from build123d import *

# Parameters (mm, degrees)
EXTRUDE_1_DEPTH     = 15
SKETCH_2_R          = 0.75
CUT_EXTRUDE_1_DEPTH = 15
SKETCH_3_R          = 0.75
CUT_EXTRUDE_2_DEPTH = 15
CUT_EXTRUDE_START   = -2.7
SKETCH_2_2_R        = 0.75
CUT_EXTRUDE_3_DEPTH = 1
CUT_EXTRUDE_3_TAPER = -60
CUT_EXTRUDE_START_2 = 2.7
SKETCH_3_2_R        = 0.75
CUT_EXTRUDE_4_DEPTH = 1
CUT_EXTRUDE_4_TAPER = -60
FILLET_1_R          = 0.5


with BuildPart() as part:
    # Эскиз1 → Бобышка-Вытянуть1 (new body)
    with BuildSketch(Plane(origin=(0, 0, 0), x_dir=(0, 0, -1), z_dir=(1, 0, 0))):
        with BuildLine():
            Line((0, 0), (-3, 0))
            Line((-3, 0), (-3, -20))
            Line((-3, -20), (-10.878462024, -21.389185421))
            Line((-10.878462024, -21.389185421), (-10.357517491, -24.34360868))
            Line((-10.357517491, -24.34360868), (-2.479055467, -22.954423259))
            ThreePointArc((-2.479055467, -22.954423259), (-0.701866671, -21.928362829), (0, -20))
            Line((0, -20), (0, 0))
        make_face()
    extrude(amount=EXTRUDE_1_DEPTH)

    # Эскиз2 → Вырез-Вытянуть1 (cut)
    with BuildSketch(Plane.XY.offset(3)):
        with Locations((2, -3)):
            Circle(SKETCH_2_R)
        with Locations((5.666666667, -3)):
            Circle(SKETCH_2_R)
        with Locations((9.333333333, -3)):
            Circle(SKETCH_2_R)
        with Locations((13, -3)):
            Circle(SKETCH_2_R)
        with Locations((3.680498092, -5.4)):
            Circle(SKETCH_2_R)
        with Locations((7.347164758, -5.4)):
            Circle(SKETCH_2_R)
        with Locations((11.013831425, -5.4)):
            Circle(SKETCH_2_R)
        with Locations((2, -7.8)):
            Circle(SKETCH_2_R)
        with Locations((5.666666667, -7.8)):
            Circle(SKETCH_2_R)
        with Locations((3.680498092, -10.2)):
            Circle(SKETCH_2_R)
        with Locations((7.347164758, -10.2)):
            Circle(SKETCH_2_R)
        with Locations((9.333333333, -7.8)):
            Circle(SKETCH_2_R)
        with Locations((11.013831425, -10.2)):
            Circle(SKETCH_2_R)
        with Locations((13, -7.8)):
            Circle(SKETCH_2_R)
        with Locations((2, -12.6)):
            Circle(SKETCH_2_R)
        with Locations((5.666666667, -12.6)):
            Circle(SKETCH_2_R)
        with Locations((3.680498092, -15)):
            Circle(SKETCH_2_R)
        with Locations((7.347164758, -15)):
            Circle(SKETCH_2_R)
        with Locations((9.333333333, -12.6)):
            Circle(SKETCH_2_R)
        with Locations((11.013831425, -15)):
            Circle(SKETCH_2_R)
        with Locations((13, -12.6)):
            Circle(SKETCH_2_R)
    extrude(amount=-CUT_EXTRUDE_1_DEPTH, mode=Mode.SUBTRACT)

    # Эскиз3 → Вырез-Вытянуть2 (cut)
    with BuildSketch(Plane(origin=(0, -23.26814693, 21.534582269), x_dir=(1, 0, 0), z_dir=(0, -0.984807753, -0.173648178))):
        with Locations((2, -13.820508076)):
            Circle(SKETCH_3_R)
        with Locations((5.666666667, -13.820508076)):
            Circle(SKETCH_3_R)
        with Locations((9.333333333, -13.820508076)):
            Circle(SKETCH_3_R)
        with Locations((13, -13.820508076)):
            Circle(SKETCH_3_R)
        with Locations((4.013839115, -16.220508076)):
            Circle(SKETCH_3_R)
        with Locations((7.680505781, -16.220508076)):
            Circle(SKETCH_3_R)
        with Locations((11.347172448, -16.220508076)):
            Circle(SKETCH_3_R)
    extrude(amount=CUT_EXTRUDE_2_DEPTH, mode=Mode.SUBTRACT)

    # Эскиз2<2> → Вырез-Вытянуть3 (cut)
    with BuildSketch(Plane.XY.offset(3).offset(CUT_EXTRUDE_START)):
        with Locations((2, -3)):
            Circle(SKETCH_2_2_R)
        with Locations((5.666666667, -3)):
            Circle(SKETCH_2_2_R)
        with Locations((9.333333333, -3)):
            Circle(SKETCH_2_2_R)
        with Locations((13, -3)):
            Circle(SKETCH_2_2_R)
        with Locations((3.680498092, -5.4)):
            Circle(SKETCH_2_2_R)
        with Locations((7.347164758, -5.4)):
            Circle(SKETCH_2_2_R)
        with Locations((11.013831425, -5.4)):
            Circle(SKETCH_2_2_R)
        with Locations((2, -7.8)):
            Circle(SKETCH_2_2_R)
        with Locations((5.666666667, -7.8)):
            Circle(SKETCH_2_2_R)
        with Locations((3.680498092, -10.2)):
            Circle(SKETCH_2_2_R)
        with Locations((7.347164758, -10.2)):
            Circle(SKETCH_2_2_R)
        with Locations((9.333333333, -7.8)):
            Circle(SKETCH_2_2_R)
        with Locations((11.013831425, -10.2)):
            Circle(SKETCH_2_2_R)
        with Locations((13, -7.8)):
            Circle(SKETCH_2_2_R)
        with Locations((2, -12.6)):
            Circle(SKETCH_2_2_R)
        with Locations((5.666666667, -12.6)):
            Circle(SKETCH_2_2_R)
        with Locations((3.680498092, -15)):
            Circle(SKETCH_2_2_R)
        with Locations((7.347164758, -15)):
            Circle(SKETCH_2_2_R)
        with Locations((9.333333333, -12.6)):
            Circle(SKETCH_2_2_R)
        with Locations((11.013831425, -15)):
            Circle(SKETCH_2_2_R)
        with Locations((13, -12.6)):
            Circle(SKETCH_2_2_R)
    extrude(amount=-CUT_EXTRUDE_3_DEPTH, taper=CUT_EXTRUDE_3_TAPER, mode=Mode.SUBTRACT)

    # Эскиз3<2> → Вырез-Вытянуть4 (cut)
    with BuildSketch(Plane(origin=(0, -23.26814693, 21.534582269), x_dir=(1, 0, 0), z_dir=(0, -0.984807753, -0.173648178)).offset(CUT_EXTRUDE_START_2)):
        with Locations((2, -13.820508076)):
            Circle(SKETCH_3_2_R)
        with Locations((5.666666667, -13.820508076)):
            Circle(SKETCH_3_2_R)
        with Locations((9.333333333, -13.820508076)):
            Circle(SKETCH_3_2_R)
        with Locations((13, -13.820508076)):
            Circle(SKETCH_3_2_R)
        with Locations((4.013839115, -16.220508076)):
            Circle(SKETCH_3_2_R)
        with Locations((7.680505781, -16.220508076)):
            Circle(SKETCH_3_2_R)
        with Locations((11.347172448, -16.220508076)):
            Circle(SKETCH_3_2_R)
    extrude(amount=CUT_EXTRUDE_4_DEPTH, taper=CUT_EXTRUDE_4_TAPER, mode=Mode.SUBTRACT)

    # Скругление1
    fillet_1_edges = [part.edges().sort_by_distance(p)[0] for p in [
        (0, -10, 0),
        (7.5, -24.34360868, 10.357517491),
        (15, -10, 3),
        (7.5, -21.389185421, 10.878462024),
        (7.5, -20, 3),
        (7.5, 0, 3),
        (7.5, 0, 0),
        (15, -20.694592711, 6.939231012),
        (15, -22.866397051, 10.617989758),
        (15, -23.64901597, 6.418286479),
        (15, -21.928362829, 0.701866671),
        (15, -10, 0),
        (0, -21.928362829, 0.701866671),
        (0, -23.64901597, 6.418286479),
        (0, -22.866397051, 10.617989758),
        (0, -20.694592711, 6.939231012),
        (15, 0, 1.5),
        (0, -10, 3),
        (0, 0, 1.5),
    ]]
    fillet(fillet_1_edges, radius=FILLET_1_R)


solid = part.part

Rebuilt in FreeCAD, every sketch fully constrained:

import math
import FreeCAD as App
import Part
import Sketcher
from FreeCAD import Vector
Q = App.Units.Quantity


def edges_at(feature, points):
    """Names of the edges that pass closest to the given points."""
    edges = feature.Shape.Edges
    near = lambda p: min(range(len(edges)), key=lambda i: edges[i].distToShape(Part.Vertex(*p))[0])
    return sorted({f"Edge{near(p) + 1}" for p in points})

doc = App.newDocument("Part")
body = doc.addObject("PartDesign::Body", "Body")

# Sketch on YZ plane
sketch1 = body.newObject("Sketcher::SketchObject", "Sketch")
sketch1.AttachmentSupport = (doc.getObject("YZ_Plane"), [""])
sketch1.MapMode = "FlatFace"
sketch1.addGeometry([
    Part.LineSegment(Vector(0, 0, 0), Vector(0, 3, 0)),  # 0
    Part.LineSegment(Vector(0, 3, 0), Vector(-20, 3, 0)),  # 1
    Part.LineSegment(Vector(-20, 3, 0), Vector(-21.4, 10.9, 0)),  # 2
    Part.LineSegment(Vector(-21.4, 10.9, 0), Vector(-24.3, 10.4, 0)),  # 3
    Part.LineSegment(Vector(-24.3, 10.4, 0), Vector(-23, 2.5, 0)),  # 4
    Part.ArcOfCircle(Part.Circle(Vector(-20, 3, 0), Vector(0, 0, 1), 3), math.radians(-170), math.radians(-90)),  # 5
    Part.LineSegment(Vector(-20, 0, 0), Vector(0, 0, 0)),  # 6
], False)
sketch1.addConstraint([
    Sketcher.Constraint("Coincident", 0, 2, 1, 1),
    Sketcher.Constraint("Coincident", 1, 2, 2, 1),
    Sketcher.Constraint("Coincident", 2, 2, 3, 1),
    Sketcher.Constraint("Coincident", 3, 2, 4, 1),
    Sketcher.Constraint("Tangent", 4, 2, 5, 1),
    Sketcher.Constraint("Tangent", 5, 2, 6, 1),
    Sketcher.Constraint("Coincident", 6, 2, 0, 1),
    Sketcher.Constraint("Vertical", 0),
    Sketcher.Constraint("Horizontal", 1),
    Sketcher.Constraint("Horizontal", 6),
    Sketcher.Constraint("Coincident", 6, 2, -1, 1),
    Sketcher.Constraint("Coincident", 1, 2, 5, 3),
    Sketcher.Constraint("Perpendicular", 2, 3),
    Sketcher.Constraint("Perpendicular", 3, 4),
    Sketcher.Constraint("Radius", 5, Q("3 mm")),
    Sketcher.Constraint("DistanceX", 1, 2, 1, 1, Q("20 mm")),
    Sketcher.Constraint("Angle", 2, Q("100 deg")),
    Sketcher.Constraint("Distance", 2, Q("8 mm")),
])
pad1 = body.newObject("PartDesign::Pad", "Pad")
pad1.Profile = sketch1
pad1.Length = 15

# Sketch on XY plane
sketch2 = body.newObject("Sketcher::SketchObject", "Sketch001")
sketch2.AttachmentSupport = (doc.getObject("XY_Plane"), [""])
sketch2.MapMode = "FlatFace"
sketch2.AttachmentOffset = App.Placement(Vector(0, 0, 3), App.Rotation())
sketch2.addGeometry([
    Part.Circle(Vector(2, -3, 0), Vector(0, 0, 1), 0.8),  # 0
    Part.Circle(Vector(5.7, -3, 0), Vector(0, 0, 1), 0.8),  # 1
    Part.Circle(Vector(9.3, -3, 0), Vector(0, 0, 1), 0.8),  # 2
    Part.Circle(Vector(13, -3, 0), Vector(0, 0, 1), 0.8),  # 3
    Part.Circle(Vector(3.7, -5.4, 0), Vector(0, 0, 1), 0.8),  # 4
    Part.Circle(Vector(7.3, -5.4, 0), Vector(0, 0, 1), 0.8),  # 5
    Part.Circle(Vector(11, -5.4, 0), Vector(0, 0, 1), 0.8),  # 6
    Part.Circle(Vector(2, -7.8, 0), Vector(0, 0, 1), 0.8),  # 7
    Part.Circle(Vector(5.7, -7.8, 0), Vector(0, 0, 1), 0.8),  # 8
    Part.Circle(Vector(3.7, -10.2, 0), Vector(0, 0, 1), 0.8),  # 9
    Part.Circle(Vector(7.3, -10.2, 0), Vector(0, 0, 1), 0.8),  # 10
    Part.Circle(Vector(9.3, -7.8, 0), Vector(0, 0, 1), 0.8),  # 11
    Part.Circle(Vector(11, -10.2, 0), Vector(0, 0, 1), 0.8),  # 12
    Part.Circle(Vector(13, -7.8, 0), Vector(0, 0, 1), 0.8),  # 13
    Part.Circle(Vector(2, -12.6, 0), Vector(0, 0, 1), 0.8),  # 14
    Part.Circle(Vector(5.7, -12.6, 0), Vector(0, 0, 1), 0.8),  # 15
    Part.Circle(Vector(3.7, -15, 0), Vector(0, 0, 1), 0.8),  # 16
    Part.Circle(Vector(7.3, -15, 0), Vector(0, 0, 1), 0.8),  # 17
    Part.Circle(Vector(9.3, -12.6, 0), Vector(0, 0, 1), 0.8),  # 18
    Part.Circle(Vector(11, -15, 0), Vector(0, 0, 1), 0.8),  # 19
    Part.Circle(Vector(13, -12.6, 0), Vector(0, 0, 1), 0.8),  # 20
], False)
sketch2.addConstraint([
    Sketcher.Constraint("Equal", 0, 1),
    Sketcher.Constraint("Equal", 1, 2),
    Sketcher.Constraint("Equal", 2, 3),
    Sketcher.Constraint("Equal", 3, 4),
    Sketcher.Constraint("Equal", 4, 5),
    Sketcher.Constraint("Equal", 5, 6),
    Sketcher.Constraint("Equal", 6, 7),
    Sketcher.Constraint("Equal", 7, 8),
    Sketcher.Constraint("Equal", 8, 9),
    Sketcher.Constraint("Equal", 9, 10),
    Sketcher.Constraint("Equal", 10, 11),
    Sketcher.Constraint("Equal", 11, 12),
    Sketcher.Constraint("Equal", 12, 13),
    Sketcher.Constraint("Equal", 13, 14),
    Sketcher.Constraint("Equal", 14, 15),
    Sketcher.Constraint("Equal", 15, 16),
    Sketcher.Constraint("Equal", 16, 17),
    Sketcher.Constraint("Equal", 17, 18),
    Sketcher.Constraint("Equal", 18, 19),
    Sketcher.Constraint("Equal", 19, 20),
    Sketcher.Constraint("Horizontal", 0, 3, 1, 3),
    Sketcher.Constraint("Horizontal", 1, 3, 2, 3),
    Sketcher.Constraint("Horizontal", 2, 3, 3, 3),
    Sketcher.Constraint("Horizontal", 4, 3, 5, 3),
    Sketcher.Constraint("Horizontal", 5, 3, 6, 3),
    Sketcher.Constraint("Horizontal", 7, 3, 8, 3),
    Sketcher.Constraint("Horizontal", 9, 3, 10, 3),
    Sketcher.Constraint("Horizontal", 8, 3, 11, 3),
    Sketcher.Constraint("Horizontal", 10, 3, 12, 3),
    Sketcher.Constraint("Horizontal", 11, 3, 13, 3),
    Sketcher.Constraint("Horizontal", 14, 3, 15, 3),
    Sketcher.Constraint("Horizontal", 16, 3, 17, 3),
    Sketcher.Constraint("Horizontal", 15, 3, 18, 3),
    Sketcher.Constraint("Horizontal", 17, 3, 19, 3),
    Sketcher.Constraint("Horizontal", 18, 3, 20, 3),
    Sketcher.Constraint("Vertical", 0, 3, 7, 3),
    Sketcher.Constraint("Vertical", 1, 3, 8, 3),
    Sketcher.Constraint("Vertical", 4, 3, 9, 3),
    Sketcher.Constraint("Vertical", 5, 3, 10, 3),
    Sketcher.Constraint("Vertical", 2, 3, 11, 3),
    Sketcher.Constraint("Vertical", 6, 3, 12, 3),
    Sketcher.Constraint("Vertical", 3, 3, 13, 3),
    Sketcher.Constraint("Vertical", 7, 3, 14, 3),
    Sketcher.Constraint("Vertical", 8, 3, 15, 3),
    Sketcher.Constraint("Vertical", 9, 3, 16, 3),
    Sketcher.Constraint("Vertical", 10, 3, 17, 3),
    Sketcher.Constraint("Vertical", 11, 3, 18, 3),
    Sketcher.Constraint("Vertical", 12, 3, 19, 3),
    Sketcher.Constraint("Vertical", 13, 3, 20, 3),
    Sketcher.Constraint("Diameter", 0, Q("1.5 mm")),
    Sketcher.Constraint("DistanceX", -1, 1, 0, 3, Q("2 mm")),
    Sketcher.Constraint("DistanceY", 0, 3, -1, 1, Q("3 mm")),
    Sketcher.Constraint("DistanceX", -1, 1, 3, 3, Q("13 mm")),
    Sketcher.Constraint("DistanceY", 16, 3, -1, 1, Q("15 mm")),
    Sketcher.Constraint("DistanceY", 4, 3, -1, 1, Q("5.4 mm")),
    Sketcher.Constraint("DistanceY", 7, 3, -1, 1, Q("7.8 mm")),
    Sketcher.Constraint("DistanceY", 9, 3, -1, 1, Q("10.2 mm")),
    Sketcher.Constraint("DistanceY", 14, 3, -1, 1, Q("12.6 mm")),
    Sketcher.Constraint("DistanceX", -1, 1, 4, 3, Q("3.680498 mm")),
    Sketcher.Constraint("DistanceX", 1, 3, 5, 3, Q("1.680498 mm")),
    Sketcher.Constraint("DistanceX", 2, 3, 6, 3, Q("1.680498 mm")),
    Sketcher.Constraint("DistanceX", -1, 1, 6, 3, Q("11.013831 mm")),
    Sketcher.Constraint("DistanceX", 4, 3, 1, 3, Q("1.986169 mm")),
])
pocket1 = body.newObject("PartDesign::Pocket", "Pocket")
pocket1.Profile = sketch2
pocket1.Length = 15

# Sketch on an angled plane
sketch3 = body.newObject("Sketcher::SketchObject", "Sketch002")
sketch3.Placement = App.Placement(Vector(0, -23.268147, 21.534582), App.Rotation(Vector(1, 0, 0), Vector(0, -0.173648178, 0.984807753), Vector(0, -0.984807753, -0.173648178), "ZXY"))
sketch3.addGeometry([
    Part.Circle(Vector(2, -13.8, 0), Vector(0, 0, 1), 0.8),  # 0
    Part.Circle(Vector(5.7, -13.8, 0), Vector(0, 0, 1), 0.8),  # 1
    Part.Circle(Vector(9.3, -13.8, 0), Vector(0, 0, 1), 0.8),  # 2
    Part.Circle(Vector(13, -13.8, 0), Vector(0, 0, 1), 0.8),  # 3
    Part.Circle(Vector(4, -16.2, 0), Vector(0, 0, 1), 0.8),  # 4
    Part.Circle(Vector(7.7, -16.2, 0), Vector(0, 0, 1), 0.8),  # 5
    Part.Circle(Vector(11.3, -16.2, 0), Vector(0, 0, 1), 0.8),  # 6
], False)
sketch3.addConstraint([
    Sketcher.Constraint("Equal", 0, 1),
    Sketcher.Constraint("Equal", 1, 2),
    Sketcher.Constraint("Equal", 2, 3),
    Sketcher.Constraint("Equal", 3, 4),
    Sketcher.Constraint("Equal", 4, 5),
    Sketcher.Constraint("Equal", 5, 6),
    Sketcher.Constraint("Horizontal", 0, 3, 1, 3),
    Sketcher.Constraint("Horizontal", 1, 3, 2, 3),
    Sketcher.Constraint("Horizontal", 2, 3, 3, 3),
    Sketcher.Constraint("Horizontal", 4, 3, 5, 3),
    Sketcher.Constraint("Horizontal", 5, 3, 6, 3),
    Sketcher.Constraint("Diameter", 0, Q("1.5 mm")),
    Sketcher.Constraint("DistanceX", -1, 1, 0, 3, Q("2 mm")),
    Sketcher.Constraint("DistanceX", -1, 1, 3, 3, Q("13 mm")),
    Sketcher.Constraint("DistanceY", 4, 3, 1, 3, Q("2.4 mm")),
    Sketcher.Constraint("DistanceY", 0, 3, -1, 1, Q("13.820508 mm")),
    Sketcher.Constraint("DistanceX", -1, 1, 4, 3, Q("4.013839 mm")),
    Sketcher.Constraint("DistanceX", 1, 3, 5, 3, Q("2.013839 mm")),
    Sketcher.Constraint("DistanceX", 2, 3, 6, 3, Q("2.013839 mm")),
    Sketcher.Constraint("DistanceX", -1, 1, 1, 3, Q("5.666667 mm")),
    Sketcher.Constraint("DistanceX", -1, 1, 2, 3, Q("9.333333 mm")),
])
pocket2 = body.newObject("PartDesign::Pocket", "Pocket001")
pocket2.Profile = sketch3
pocket2.Length = 15
pocket2.Reversed = True

# Sketch on XY plane
sketch4 = body.newObject("Sketcher::SketchObject", "Sketch003")
sketch4.AttachmentSupport = (doc.getObject("XY_Plane"), [""])
sketch4.MapMode = "FlatFace"
sketch4.AttachmentOffset = App.Placement(Vector(0, 0, 0.3), App.Rotation())
sketch4.addGeometry([
    Part.Circle(Vector(2, -3, 0), Vector(0, 0, 1), 0.8),  # 0
    Part.Circle(Vector(5.7, -3, 0), Vector(0, 0, 1), 0.8),  # 1
    Part.Circle(Vector(9.3, -3, 0), Vector(0, 0, 1), 0.8),  # 2
    Part.Circle(Vector(13, -3, 0), Vector(0, 0, 1), 0.8),  # 3
    Part.Circle(Vector(3.7, -5.4, 0), Vector(0, 0, 1), 0.8),  # 4
    Part.Circle(Vector(7.3, -5.4, 0), Vector(0, 0, 1), 0.8),  # 5
    Part.Circle(Vector(11, -5.4, 0), Vector(0, 0, 1), 0.8),  # 6
    Part.Circle(Vector(2, -7.8, 0), Vector(0, 0, 1), 0.8),  # 7
    Part.Circle(Vector(5.7, -7.8, 0), Vector(0, 0, 1), 0.8),  # 8
    Part.Circle(Vector(3.7, -10.2, 0), Vector(0, 0, 1), 0.8),  # 9
    Part.Circle(Vector(7.3, -10.2, 0), Vector(0, 0, 1), 0.8),  # 10
    Part.Circle(Vector(9.3, -7.8, 0), Vector(0, 0, 1), 0.8),  # 11
    Part.Circle(Vector(11, -10.2, 0), Vector(0, 0, 1), 0.8),  # 12
    Part.Circle(Vector(13, -7.8, 0), Vector(0, 0, 1), 0.8),  # 13
    Part.Circle(Vector(2, -12.6, 0), Vector(0, 0, 1), 0.8),  # 14
    Part.Circle(Vector(5.7, -12.6, 0), Vector(0, 0, 1), 0.8),  # 15
    Part.Circle(Vector(3.7, -15, 0), Vector(0, 0, 1), 0.8),  # 16
    Part.Circle(Vector(7.3, -15, 0), Vector(0, 0, 1), 0.8),  # 17
    Part.Circle(Vector(9.3, -12.6, 0), Vector(0, 0, 1), 0.8),  # 18
    Part.Circle(Vector(11, -15, 0), Vector(0, 0, 1), 0.8),  # 19
    Part.Circle(Vector(13, -12.6, 0), Vector(0, 0, 1), 0.8),  # 20
], False)
sketch4.addConstraint([
    Sketcher.Constraint("Equal", 0, 1),
    Sketcher.Constraint("Equal", 1, 2),
    Sketcher.Constraint("Equal", 2, 3),
    Sketcher.Constraint("Equal", 3, 4),
    Sketcher.Constraint("Equal", 4, 5),
    Sketcher.Constraint("Equal", 5, 6),
    Sketcher.Constraint("Equal", 6, 7),
    Sketcher.Constraint("Equal", 7, 8),
    Sketcher.Constraint("Equal", 8, 9),
    Sketcher.Constraint("Equal", 9, 10),
    Sketcher.Constraint("Equal", 10, 11),
    Sketcher.Constraint("Equal", 11, 12),
    Sketcher.Constraint("Equal", 12, 13),
    Sketcher.Constraint("Equal", 13, 14),
    Sketcher.Constraint("Equal", 14, 15),
    Sketcher.Constraint("Equal", 15, 16),
    Sketcher.Constraint("Equal", 16, 17),
    Sketcher.Constraint("Equal", 17, 18),
    Sketcher.Constraint("Equal", 18, 19),
    Sketcher.Constraint("Equal", 19, 20),
    Sketcher.Constraint("Horizontal", 0, 3, 1, 3),
    Sketcher.Constraint("Horizontal", 1, 3, 2, 3),
    Sketcher.Constraint("Horizontal", 2, 3, 3, 3),
    Sketcher.Constraint("Horizontal", 4, 3, 5, 3),
    Sketcher.Constraint("Horizontal", 5, 3, 6, 3),
    Sketcher.Constraint("Horizontal", 7, 3, 8, 3),
    Sketcher.Constraint("Horizontal", 9, 3, 10, 3),
    Sketcher.Constraint("Horizontal", 8, 3, 11, 3),
    Sketcher.Constraint("Horizontal", 10, 3, 12, 3),
    Sketcher.Constraint("Horizontal", 11, 3, 13, 3),
    Sketcher.Constraint("Horizontal", 14, 3, 15, 3),
    Sketcher.Constraint("Horizontal", 16, 3, 17, 3),
    Sketcher.Constraint("Horizontal", 15, 3, 18, 3),
    Sketcher.Constraint("Horizontal", 17, 3, 19, 3),
    Sketcher.Constraint("Horizontal", 18, 3, 20, 3),
    Sketcher.Constraint("Vertical", 0, 3, 7, 3),
    Sketcher.Constraint("Vertical", 1, 3, 8, 3),
    Sketcher.Constraint("Vertical", 4, 3, 9, 3),
    Sketcher.Constraint("Vertical", 5, 3, 10, 3),
    Sketcher.Constraint("Vertical", 2, 3, 11, 3),
    Sketcher.Constraint("Vertical", 6, 3, 12, 3),
    Sketcher.Constraint("Vertical", 3, 3, 13, 3),
    Sketcher.Constraint("Vertical", 7, 3, 14, 3),
    Sketcher.Constraint("Vertical", 8, 3, 15, 3),
    Sketcher.Constraint("Vertical", 9, 3, 16, 3),
    Sketcher.Constraint("Vertical", 10, 3, 17, 3),
    Sketcher.Constraint("Vertical", 11, 3, 18, 3),
    Sketcher.Constraint("Vertical", 12, 3, 19, 3),
    Sketcher.Constraint("Vertical", 13, 3, 20, 3),
    Sketcher.Constraint("Diameter", 0, Q("1.5 mm")),
    Sketcher.Constraint("DistanceX", -1, 1, 0, 3, Q("2 mm")),
    Sketcher.Constraint("DistanceY", 0, 3, -1, 1, Q("3 mm")),
    Sketcher.Constraint("DistanceX", -1, 1, 3, 3, Q("13 mm")),
    Sketcher.Constraint("DistanceY", 16, 3, -1, 1, Q("15 mm")),
    Sketcher.Constraint("DistanceY", 4, 3, -1, 1, Q("5.4 mm")),
    Sketcher.Constraint("DistanceY", 7, 3, -1, 1, Q("7.8 mm")),
    Sketcher.Constraint("DistanceY", 9, 3, -1, 1, Q("10.2 mm")),
    Sketcher.Constraint("DistanceY", 14, 3, -1, 1, Q("12.6 mm")),
    Sketcher.Constraint("DistanceX", -1, 1, 4, 3, Q("3.680498 mm")),
    Sketcher.Constraint("DistanceX", 1, 3, 5, 3, Q("1.680498 mm")),
    Sketcher.Constraint("DistanceX", 2, 3, 6, 3, Q("1.680498 mm")),
    Sketcher.Constraint("DistanceX", -1, 1, 6, 3, Q("11.013831 mm")),
    Sketcher.Constraint("DistanceX", 4, 3, 1, 3, Q("1.986169 mm")),
])
pocket3 = body.newObject("PartDesign::Pocket", "Pocket002")
pocket3.Profile = sketch4
pocket3.Length = 1
pocket3.TaperAngle = 60

# Sketch on an angled plane
sketch5 = body.newObject("Sketcher::SketchObject", "Sketch004")
sketch5.Placement = App.Placement(Vector(0, -25.927128, 21.065732), App.Rotation(Vector(1, 0, 0), Vector(0, -0.173648178, 0.984807753), Vector(0, -0.984807753, -0.173648178), "ZXY"))
sketch5.addGeometry([
    Part.Circle(Vector(2, -13.8, 0), Vector(0, 0, 1), 0.8),  # 0
    Part.Circle(Vector(5.7, -13.8, 0), Vector(0, 0, 1), 0.8),  # 1
    Part.Circle(Vector(9.3, -13.8, 0), Vector(0, 0, 1), 0.8),  # 2
    Part.Circle(Vector(13, -13.8, 0), Vector(0, 0, 1), 0.8),  # 3
    Part.Circle(Vector(4, -16.2, 0), Vector(0, 0, 1), 0.8),  # 4
    Part.Circle(Vector(7.7, -16.2, 0), Vector(0, 0, 1), 0.8),  # 5
    Part.Circle(Vector(11.3, -16.2, 0), Vector(0, 0, 1), 0.8),  # 6
], False)
sketch5.addConstraint([
    Sketcher.Constraint("Equal", 0, 1),
    Sketcher.Constraint("Equal", 1, 2),
    Sketcher.Constraint("Equal", 2, 3),
    Sketcher.Constraint("Equal", 3, 4),
    Sketcher.Constraint("Equal", 4, 5),
    Sketcher.Constraint("Equal", 5, 6),
    Sketcher.Constraint("Horizontal", 0, 3, 1, 3),
    Sketcher.Constraint("Horizontal", 1, 3, 2, 3),
    Sketcher.Constraint("Horizontal", 2, 3, 3, 3),
    Sketcher.Constraint("Horizontal", 4, 3, 5, 3),
    Sketcher.Constraint("Horizontal", 5, 3, 6, 3),
    Sketcher.Constraint("Diameter", 0, Q("1.5 mm")),
    Sketcher.Constraint("DistanceX", -1, 1, 0, 3, Q("2 mm")),
    Sketcher.Constraint("DistanceX", -1, 1, 3, 3, Q("13 mm")),
    Sketcher.Constraint("DistanceY", 4, 3, 1, 3, Q("2.4 mm")),
    Sketcher.Constraint("DistanceY", 0, 3, -1, 1, Q("13.820508 mm")),
    Sketcher.Constraint("DistanceX", -1, 1, 4, 3, Q("4.013839 mm")),
    Sketcher.Constraint("DistanceX", 1, 3, 5, 3, Q("2.013839 mm")),
    Sketcher.Constraint("DistanceX", 2, 3, 6, 3, Q("2.013839 mm")),
    Sketcher.Constraint("DistanceX", -1, 1, 1, 3, Q("5.666667 mm")),
    Sketcher.Constraint("DistanceX", -1, 1, 2, 3, Q("9.333333 mm")),
])
pocket4 = body.newObject("PartDesign::Pocket", "Pocket003")
pocket4.Profile = sketch5
pocket4.Length = 1
pocket4.Reversed = True
pocket4.TaperAngle = 60
doc.recompute()

fillet = body.newObject("PartDesign::Fillet", "Fillet")
fillet.Base = (pocket4, edges_at(pocket4, [
    (0, -10, 0),
    (7.5, -24.344, 10.358),
    (15, -10, 3),
    (7.5, -21.389, 10.878),
    (7.5, -20, 3),
    (7.5, 0, 3),
    (7.5, 0, 0),
    (15, -20.695, 6.939),
    (15, -22.866, 10.618),
    (15, -23.649, 6.418),
    (15, -21.928, 0.702),
    (15, -10, 0),
    (0, -21.928, 0.702),
    (0, -23.649, 6.418),
    (0, -22.866, 10.618),
    (0, -20.695, 6.939),
    (15, 0, 1.5),
    (0, -10, 3),
    (0, 0, 1.5),
]))
fillet.Radius = 0.5

doc.recompute()
